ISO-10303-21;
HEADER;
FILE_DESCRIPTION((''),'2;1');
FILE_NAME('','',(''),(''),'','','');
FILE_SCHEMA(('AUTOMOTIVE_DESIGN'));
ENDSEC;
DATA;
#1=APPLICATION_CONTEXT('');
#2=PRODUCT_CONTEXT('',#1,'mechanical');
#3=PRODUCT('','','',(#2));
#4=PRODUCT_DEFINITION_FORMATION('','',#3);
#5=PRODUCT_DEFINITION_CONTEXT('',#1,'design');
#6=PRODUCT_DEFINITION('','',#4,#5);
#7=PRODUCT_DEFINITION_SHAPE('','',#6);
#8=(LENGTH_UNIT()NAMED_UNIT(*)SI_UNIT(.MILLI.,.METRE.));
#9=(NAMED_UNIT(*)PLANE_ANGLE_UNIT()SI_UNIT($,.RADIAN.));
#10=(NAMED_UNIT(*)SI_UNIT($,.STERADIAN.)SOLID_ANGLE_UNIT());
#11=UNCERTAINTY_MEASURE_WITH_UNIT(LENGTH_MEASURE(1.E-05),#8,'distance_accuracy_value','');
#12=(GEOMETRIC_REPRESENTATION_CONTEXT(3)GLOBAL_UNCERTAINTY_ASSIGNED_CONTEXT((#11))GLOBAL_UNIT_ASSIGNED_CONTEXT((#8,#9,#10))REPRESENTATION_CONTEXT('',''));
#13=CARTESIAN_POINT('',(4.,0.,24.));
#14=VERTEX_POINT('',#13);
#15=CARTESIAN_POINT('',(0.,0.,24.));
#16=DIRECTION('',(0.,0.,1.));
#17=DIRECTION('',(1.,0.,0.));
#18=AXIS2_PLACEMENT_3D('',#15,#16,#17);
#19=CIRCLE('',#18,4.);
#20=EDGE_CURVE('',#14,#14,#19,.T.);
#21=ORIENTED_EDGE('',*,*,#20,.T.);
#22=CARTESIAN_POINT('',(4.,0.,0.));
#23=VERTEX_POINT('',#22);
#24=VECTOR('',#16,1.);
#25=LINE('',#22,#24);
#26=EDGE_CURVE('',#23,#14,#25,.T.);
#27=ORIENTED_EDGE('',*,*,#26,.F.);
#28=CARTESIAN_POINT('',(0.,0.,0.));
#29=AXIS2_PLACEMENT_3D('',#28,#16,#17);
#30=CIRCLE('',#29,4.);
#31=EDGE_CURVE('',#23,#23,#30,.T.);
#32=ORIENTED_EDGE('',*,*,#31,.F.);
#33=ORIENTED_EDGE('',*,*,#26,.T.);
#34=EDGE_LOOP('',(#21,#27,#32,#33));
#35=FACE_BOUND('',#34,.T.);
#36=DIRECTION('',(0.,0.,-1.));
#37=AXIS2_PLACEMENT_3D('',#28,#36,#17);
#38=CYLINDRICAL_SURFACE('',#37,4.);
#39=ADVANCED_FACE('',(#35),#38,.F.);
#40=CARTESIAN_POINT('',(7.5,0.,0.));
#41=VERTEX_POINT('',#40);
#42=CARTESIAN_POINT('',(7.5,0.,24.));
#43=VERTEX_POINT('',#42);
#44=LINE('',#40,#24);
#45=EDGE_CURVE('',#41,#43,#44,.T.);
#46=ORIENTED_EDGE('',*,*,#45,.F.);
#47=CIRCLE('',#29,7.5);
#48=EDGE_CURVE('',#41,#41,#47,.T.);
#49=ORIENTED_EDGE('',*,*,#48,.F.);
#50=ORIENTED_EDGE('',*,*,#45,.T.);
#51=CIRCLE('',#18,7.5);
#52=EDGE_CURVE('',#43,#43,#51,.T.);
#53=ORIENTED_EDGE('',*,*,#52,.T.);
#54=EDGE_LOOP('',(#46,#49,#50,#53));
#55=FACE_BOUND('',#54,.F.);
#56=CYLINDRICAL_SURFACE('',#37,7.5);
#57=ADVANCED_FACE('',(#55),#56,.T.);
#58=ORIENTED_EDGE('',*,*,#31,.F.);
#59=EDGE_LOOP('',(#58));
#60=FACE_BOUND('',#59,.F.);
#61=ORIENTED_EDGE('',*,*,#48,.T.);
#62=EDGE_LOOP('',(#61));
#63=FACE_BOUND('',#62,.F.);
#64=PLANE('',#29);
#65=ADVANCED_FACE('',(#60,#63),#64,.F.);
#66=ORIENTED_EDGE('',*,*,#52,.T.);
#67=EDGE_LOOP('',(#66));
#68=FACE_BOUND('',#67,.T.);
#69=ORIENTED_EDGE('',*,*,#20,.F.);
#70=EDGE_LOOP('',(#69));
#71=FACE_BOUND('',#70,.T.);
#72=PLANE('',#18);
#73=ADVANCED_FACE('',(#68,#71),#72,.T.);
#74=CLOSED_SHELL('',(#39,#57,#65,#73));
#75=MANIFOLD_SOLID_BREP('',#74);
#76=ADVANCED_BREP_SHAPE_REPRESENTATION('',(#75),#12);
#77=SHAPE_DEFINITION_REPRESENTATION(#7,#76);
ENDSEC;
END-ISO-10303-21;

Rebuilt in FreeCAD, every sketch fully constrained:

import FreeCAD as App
import Part
import Sketcher

V = App.Vector
Q = App.Units.Quantity

doc = App.newDocument("Part")
params = doc.addObject("Spreadsheet::Sheet", "Params")
for row, (alias, value) in enumerate([
    ("sketch1_diameter", "15 mm"),
    ("sketch1_diameter2", "8 mm"),
    ("pad1_length", "24 mm"),
], start=1):
    params.set(f"A{row}", alias)
    params.set(f"B{row}", "=" + value)
    params.setAlias(f"B{row}", alias)

body = doc.addObject("PartDesign::Body", "Body")

# Sketch on XY plane
sketch1 = body.newObject("Sketcher::SketchObject", "Sketch")
sketch1.AttachmentSupport = (doc.getObject("XY_Plane"), [""])
sketch1.MapMode = "FlatFace"
sketch1.addGeometry(Part.Circle(V(0, 0, 0), V(0, 0, 1), 7.5), False)
sketch1.addGeometry(Part.Circle(V(0, 0, 0), V(0, 0, 1), 4), False)
sketch1.addConstraint(Sketcher.Constraint("Coincident", 0, 3, -1, 1))
sketch1.addConstraint(Sketcher.Constraint("Coincident", 1, 3, -1, 1))
sketch1.addConstraint(Sketcher.Constraint("Diameter", 0, Q("15 mm")))
sketch1.addConstraint(Sketcher.Constraint("Diameter", 1, Q("8 mm")))
sketch1.setExpression("Constraints[2]", "Params.sketch1_diameter")
sketch1.setExpression("Constraints[3]", "Params.sketch1_diameter2")
pad1 = body.newObject("PartDesign::Pad", "Pad")
pad1.Profile = sketch1
pad1.setExpression("Length", "Params.pad1_length")

doc.recompute()
